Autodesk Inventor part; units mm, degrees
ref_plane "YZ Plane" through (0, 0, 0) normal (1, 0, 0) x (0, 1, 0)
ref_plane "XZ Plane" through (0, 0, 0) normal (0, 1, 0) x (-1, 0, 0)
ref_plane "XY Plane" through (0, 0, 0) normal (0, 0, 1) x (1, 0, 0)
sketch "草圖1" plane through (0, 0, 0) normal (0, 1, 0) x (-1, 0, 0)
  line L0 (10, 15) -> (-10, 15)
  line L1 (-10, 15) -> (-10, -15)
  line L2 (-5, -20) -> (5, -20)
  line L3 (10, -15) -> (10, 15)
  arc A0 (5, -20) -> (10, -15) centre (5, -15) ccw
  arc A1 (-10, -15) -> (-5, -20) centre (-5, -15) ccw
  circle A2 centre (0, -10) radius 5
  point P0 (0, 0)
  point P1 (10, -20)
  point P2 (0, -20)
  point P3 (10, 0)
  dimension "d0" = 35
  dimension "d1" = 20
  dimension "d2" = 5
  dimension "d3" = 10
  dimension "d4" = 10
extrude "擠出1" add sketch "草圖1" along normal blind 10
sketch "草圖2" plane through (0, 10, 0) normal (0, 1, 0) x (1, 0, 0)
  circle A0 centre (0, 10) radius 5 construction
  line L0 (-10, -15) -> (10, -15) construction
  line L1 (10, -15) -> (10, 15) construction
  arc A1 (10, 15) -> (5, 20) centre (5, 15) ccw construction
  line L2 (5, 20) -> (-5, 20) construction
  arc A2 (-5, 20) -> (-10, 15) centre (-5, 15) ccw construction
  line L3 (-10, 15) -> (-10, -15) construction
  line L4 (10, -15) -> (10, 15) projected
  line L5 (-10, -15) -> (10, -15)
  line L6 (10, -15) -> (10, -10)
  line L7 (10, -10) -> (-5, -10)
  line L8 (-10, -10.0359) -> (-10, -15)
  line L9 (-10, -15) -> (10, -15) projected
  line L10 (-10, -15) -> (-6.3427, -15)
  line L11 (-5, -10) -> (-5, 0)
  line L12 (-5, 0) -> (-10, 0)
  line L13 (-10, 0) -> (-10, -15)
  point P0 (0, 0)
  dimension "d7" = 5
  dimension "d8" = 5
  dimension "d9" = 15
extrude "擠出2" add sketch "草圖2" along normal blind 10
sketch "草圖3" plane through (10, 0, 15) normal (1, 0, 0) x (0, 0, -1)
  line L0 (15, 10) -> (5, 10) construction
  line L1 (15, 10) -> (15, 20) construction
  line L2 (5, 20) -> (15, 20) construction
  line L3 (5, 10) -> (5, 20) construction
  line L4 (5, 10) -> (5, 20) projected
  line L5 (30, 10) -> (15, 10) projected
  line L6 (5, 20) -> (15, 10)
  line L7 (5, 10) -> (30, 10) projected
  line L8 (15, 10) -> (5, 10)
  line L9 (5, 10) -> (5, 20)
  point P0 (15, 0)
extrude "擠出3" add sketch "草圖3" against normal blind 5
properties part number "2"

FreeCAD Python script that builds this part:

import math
import FreeCAD as App
import Part
import Sketcher
from FreeCAD import Vector

doc = App.newDocument("Part")
body = doc.addObject("PartDesign::Body", "Body")

sketch1 = doc.addObject("Sketcher::SketchObject", "Sketch")
body.addObject(sketch1)
sketch1.AttachmentSupport = (doc.XZ_Plane, [""])
sketch1.MapMode = "FlatFace"
sketch1.addGeometry([
    Part.LineSegment(Vector(-10, -15, 0), Vector(-10, 15, 0)),
    Part.LineSegment(Vector(-10, 15, 0), Vector(10, 15, 0)),
    Part.LineSegment(Vector(10, 15, 0), Vector(10, -15, 0)),
    Part.ArcOfCircle(Part.Circle(Vector(5, -15, 0), Vector(0, 0, 1), 5), math.radians(-90), math.radians(0)),
    Part.LineSegment(Vector(5, -20, 0), Vector(-5, -20, 0)),
    Part.ArcOfCircle(Part.Circle(Vector(-5, -15, 0), Vector(0, 0, 1), 5), math.radians(180), math.radians(270)),
    Part.Circle(Vector(0, -10, 0), Vector(0, 0, 1), 5),
], False)
sketch1.addConstraint([
    Sketcher.Constraint("Coincident", 0, 2, 1, 1),
    Sketcher.Constraint("Coincident", 1, 2, 2, 1),
    Sketcher.Constraint("Tangent", 2, 2, 3, 2),
    Sketcher.Constraint("Tangent", 3, 1, 4, 1),
    Sketcher.Constraint("Tangent", 4, 2, 5, 2),
    Sketcher.Constraint("Tangent", 5, 1, 0, 1),
    Sketcher.Constraint("Vertical", 0),
    Sketcher.Constraint("Horizontal", 1),
    Sketcher.Constraint("Vertical", 2),
    Sketcher.Constraint("Horizontal", 4),
    Sketcher.Constraint("Equal", 3, 5),
    Sketcher.Constraint("Equal", 5, 6),
    Sketcher.Constraint("Symmetric", 0, 2, 2, 2, -1, 1),
    Sketcher.Constraint("PointOnObject", 6, 3, -2),
    Sketcher.Constraint("Diameter", 6, 10.0),
    Sketcher.Constraint("DistanceX", 1, 1, 1, 2, 20.0),
    Sketcher.Constraint("DistanceY", 6, 3, -1, 1, 10.0),
    Sketcher.Constraint("DistanceY", 3, 1, -1, 1, 20.0),
])
pad1 = doc.addObject("PartDesign::Pad", "Pad")
body.addObject(pad1)
pad1.Profile = sketch1
pad1.Length = 10
pad1.Reversed = True

sketch2 = doc.addObject("Sketcher::SketchObject", "Sketch001")
body.addObject(sketch2)
sketch2.AttachmentSupport = (doc.XZ_Plane, [""])
sketch2.MapMode = "FlatFace"
sketch2.AttachmentOffset = App.Placement(Vector(0, 0, -10), App.Rotation())
sketch2.addGeometry([
    Part.LineSegment(Vector(-10, 15, 0), Vector(10, 15, 0)),
    Part.LineSegment(Vector(10, 15, 0), Vector(10, 10, 0)),
    Part.LineSegment(Vector(10, 10, 0), Vector(-5, 10, 0)),
    Part.LineSegment(Vector(-5, 10, 0), Vector(-5, 0, 0)),
    Part.LineSegment(Vector(-5, 0, 0), Vector(-10, 0, 0)),
    Part.LineSegment(Vector(-10, 0, 0), Vector(-10, 15, 0)),
], False)
sketch2.addConstraint([
    Sketcher.Constraint("Coincident", 0, 2, 1, 1),
    Sketcher.Constraint("Coincident", 1, 2, 2, 1),
    Sketcher.Constraint("Coincident", 2, 2, 3, 1),
    Sketcher.Constraint("Coincident", 3, 2, 4, 1),
    Sketcher.Constraint("Coincident", 4, 2, 5, 1),
    Sketcher.Constraint("Coincident", 5, 2, 0, 1),
    Sketcher.Constraint("Horizontal", 0),
    Sketcher.Constraint("Vertical", 1),
    Sketcher.Constraint("Horizontal", 2),
    Sketcher.Constraint("Vertical", 3),
    Sketcher.Constraint("Horizontal", 4),
    Sketcher.Constraint("Vertical", 5),
    Sketcher.Constraint("PointOnObject", 3, 2, -1),
    Sketcher.Constraint("Equal", 4, 1),
    Sketcher.Constraint("Equal", 2, 5),
    Sketcher.Constraint("DistanceX", 2, 2, 2, 1, 15.0),
    Sketcher.Constraint("DistanceX", 4, 2, 4, 1, 5.0),
    Sketcher.Constraint("DistanceX", 2, 2, -1, 1, 5.0),
])
pad2 = doc.addObject("PartDesign::Pad", "Pad001")
body.addObject(pad2)
pad2.Profile = sketch2
pad2.Length = 10
pad2.Reversed = True

sketch3 = doc.addObject("Sketcher::SketchObject", "Sketch002")
body.addObject(sketch3)
sketch3.AttachmentSupport = (doc.YZ_Plane, [""])
sketch3.MapMode = "FlatFace"
sketch3.AttachmentOffset = App.Placement(Vector(0, 0, 10), App.Rotation())
sketch3.addGeometry([
    Part.LineSegment(Vector(20, 10, 0), Vector(10, 10, 0)),
    Part.LineSegment(Vector(10, 10, 0), Vector(10, 0, 0)),
    Part.LineSegment(Vector(10, 0, 0), Vector(20, 10, 0)),
], False)
sketch3.addConstraint([
    Sketcher.Constraint("Coincident", 0, 2, 1, 1),
    Sketcher.Constraint("Coincident", 1, 2, 2, 1),
    Sketcher.Constraint("Coincident", 2, 2, 0, 1),
    Sketcher.Constraint("Horizontal", 0),
    Sketcher.Constraint("Vertical", 1),
    Sketcher.Constraint("PointOnObject", 1, 2, -1),
    Sketcher.Constraint("Equal", 0, 1),
    Sketcher.Constraint("DistanceX", 0, 2, 0, 1, 10.0),
    Sketcher.Constraint("DistanceX", -1, 1, 0, 2, 10.0),
])
pad3 = doc.addObject("PartDesign::Pad", "Pad002")
body.addObject(pad3)
pad3.Profile = sketch3
pad3.Length = 5
pad3.Reversed = True

doc.recompute()
